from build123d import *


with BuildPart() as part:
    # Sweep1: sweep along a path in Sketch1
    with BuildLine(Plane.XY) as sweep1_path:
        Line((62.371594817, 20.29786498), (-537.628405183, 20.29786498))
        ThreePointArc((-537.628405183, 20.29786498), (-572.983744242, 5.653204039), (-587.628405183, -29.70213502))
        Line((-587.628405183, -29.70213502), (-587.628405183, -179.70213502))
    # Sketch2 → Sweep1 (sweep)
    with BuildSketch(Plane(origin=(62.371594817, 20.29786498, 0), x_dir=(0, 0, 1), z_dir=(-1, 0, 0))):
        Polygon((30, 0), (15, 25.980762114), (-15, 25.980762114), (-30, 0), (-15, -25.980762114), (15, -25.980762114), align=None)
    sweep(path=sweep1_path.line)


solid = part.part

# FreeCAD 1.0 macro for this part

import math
import FreeCAD as App
import Part
import Sketcher
from FreeCAD import Vector
Q = App.Units.Quantity

doc = App.newDocument("Part")
body = doc.addObject("PartDesign::Body", "Body")

sketch1 = body.newObject("Sketcher::SketchObject", "Sketch")
sketch1.AttachmentSupport = (doc.getObject("YZ_Plane"), [""])
sketch1.MapMode = "FlatFace"
sketch1.AttachmentOffset = App.Placement(Vector(0, 0, 62.371595), App.Rotation())
sketch1.addGeometry([
    Part.LineSegment(Vector(20.297865, 30, 0), Vector(46.278627, 15, 0)),
    Part.LineSegment(Vector(46.278627, 15, 0), Vector(46.278627, -15, 0)),
    Part.LineSegment(Vector(46.278627, -15, 0), Vector(20.297865, -30, 0)),
    Part.LineSegment(Vector(20.297865, -30, 0), Vector(-5.682897, -15, 0)),
    Part.LineSegment(Vector(-5.682897, -15, 0), Vector(-5.682897, 15, 0)),
    Part.LineSegment(Vector(-5.682897, 15, 0), Vector(20.297865, 30, 0)),
], False)
sketch1.addConstraint([
    Sketcher.Constraint("Coincident", 0, 2, 1, 1),
    Sketcher.Constraint("Coincident", 1, 2, 2, 1),
    Sketcher.Constraint("Coincident", 2, 2, 3, 1),
    Sketcher.Constraint("Coincident", 3, 2, 4, 1),
    Sketcher.Constraint("Coincident", 4, 2, 5, 1),
    Sketcher.Constraint("Coincident", 5, 2, 0, 1),
    Sketcher.Constraint("Vertical", 1),
    Sketcher.Constraint("Vertical", 4),
    Sketcher.Constraint("Symmetric", 2, 2, 5, 2, -1),
    Sketcher.Constraint("Parallel", 0, 3),
    Sketcher.Constraint("Parallel", 2, 5),
    Sketcher.Constraint("Horizontal", 1, 2, 3, 2),
    Sketcher.Constraint("Horizontal", 0, 2, 4, 2),
    Sketcher.Constraint("DistanceY", 1, 2, 1, 1, 30.0),
    Sketcher.Constraint("Angle", 0, Q("-30 deg")),
    Sketcher.Constraint("Distance", 0, 30.0),
    Sketcher.Constraint("DistanceX", -1, 1, 0, 2, 46.278627),
])

sketch2 = body.newObject("Sketcher::SketchObject", "Sketch001")
sketch2.AttachmentSupport = (doc.getObject("XY_Plane"), [""])
sketch2.MapMode = "FlatFace"
sketch2.addGeometry([
    Part.LineSegment(Vector(62.371595, 20.297865, 0), Vector(-537.628405, 20.297865, 0)),
    Part.ArcOfCircle(Part.Circle(Vector(-537.628405, -29.702135, 0), Vector(0, 0, 1), 50), math.radians(90), math.radians(180)),
    Part.LineSegment(Vector(-587.628405, -29.702135, 0), Vector(-587.628405, -179.702135, 0)),
], False)
sketch2.addConstraint([
    Sketcher.Constraint("Tangent", 0, 2, 1, 1),
    Sketcher.Constraint("Tangent", 1, 2, 2, 1),
    Sketcher.Constraint("Horizontal", 0),
    Sketcher.Constraint("Vertical", 2),
    Sketcher.Constraint("Radius", 1, 50.0),
    Sketcher.Constraint("DistanceX", 0, 2, 0, 1, 600.0),
    Sketcher.Constraint("DistanceY", 2, 2, 2, 1, 150.0),
    Sketcher.Constraint("DistanceX", 1, 3, -1, 1, 537.628405),
    Sketcher.Constraint("DistanceY", 1, 3, -1, 1, 29.702135),
])
doc.recompute()

additivepipe = body.newObject("PartDesign::AdditivePipe", "AdditivePipe")
additivepipe.Profile = sketch1
additivepipe.Spine = (sketch2, ["Edge1", "Edge2", "Edge3"])

doc.recompute()
